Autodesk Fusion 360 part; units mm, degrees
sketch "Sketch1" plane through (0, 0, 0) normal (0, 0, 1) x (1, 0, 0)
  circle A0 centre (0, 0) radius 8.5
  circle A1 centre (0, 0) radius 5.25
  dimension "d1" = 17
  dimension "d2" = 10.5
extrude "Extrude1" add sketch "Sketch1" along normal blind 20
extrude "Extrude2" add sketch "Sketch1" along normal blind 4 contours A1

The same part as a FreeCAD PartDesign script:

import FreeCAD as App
import Part
import Sketcher
from FreeCAD import Vector
Q = App.Units.Quantity

doc = App.newDocument("Part")
body = doc.addObject("PartDesign::Body", "Body")

sketch1 = body.newObject("Sketcher::SketchObject", "Sketch")
sketch1.AttachmentSupport = (doc.getObject("XY_Plane"), [""])
sketch1.MapMode = "FlatFace"
sketch1.addGeometry([
    Part.Circle(Vector(0, 0, 0), Vector(0, 0, 1), 8.5),
    Part.Circle(Vector(0, 0, 0), Vector(0, 0, 1), 5.25),
], False)
sketch1.addConstraint([
    Sketcher.Constraint("Coincident", 0, 3, -1, 1),
    Sketcher.Constraint("Coincident", 1, 3, -1, 1),
    Sketcher.Constraint("Diameter", 0, Q("17 mm")),
    Sketcher.Constraint("Diameter", 1, Q("10.5 mm")),
])
pad1 = body.newObject("PartDesign::Pad", "Pad")
pad1.Profile = sketch1
pad1.Length = 20

sketch2 = body.newObject("Sketcher::SketchObject", "Sketch001")
sketch2.AttachmentSupport = (doc.getObject("XY_Plane"), [""])
sketch2.MapMode = "FlatFace"
sketch2.addGeometry(Part.Circle(Vector(0, 0, 0), Vector(0, 0, 1), 5.25), False)
sketch2.addConstraint([
    Sketcher.Constraint("Coincident", 0, 3, -1, 1),
    Sketcher.Constraint("Diameter", 0, Q("10.5 mm")),
])
pad2 = body.newObject("PartDesign::Pad", "Pad001")
pad2.Profile = sketch2
pad2.Length = 4

doc.recompute()
